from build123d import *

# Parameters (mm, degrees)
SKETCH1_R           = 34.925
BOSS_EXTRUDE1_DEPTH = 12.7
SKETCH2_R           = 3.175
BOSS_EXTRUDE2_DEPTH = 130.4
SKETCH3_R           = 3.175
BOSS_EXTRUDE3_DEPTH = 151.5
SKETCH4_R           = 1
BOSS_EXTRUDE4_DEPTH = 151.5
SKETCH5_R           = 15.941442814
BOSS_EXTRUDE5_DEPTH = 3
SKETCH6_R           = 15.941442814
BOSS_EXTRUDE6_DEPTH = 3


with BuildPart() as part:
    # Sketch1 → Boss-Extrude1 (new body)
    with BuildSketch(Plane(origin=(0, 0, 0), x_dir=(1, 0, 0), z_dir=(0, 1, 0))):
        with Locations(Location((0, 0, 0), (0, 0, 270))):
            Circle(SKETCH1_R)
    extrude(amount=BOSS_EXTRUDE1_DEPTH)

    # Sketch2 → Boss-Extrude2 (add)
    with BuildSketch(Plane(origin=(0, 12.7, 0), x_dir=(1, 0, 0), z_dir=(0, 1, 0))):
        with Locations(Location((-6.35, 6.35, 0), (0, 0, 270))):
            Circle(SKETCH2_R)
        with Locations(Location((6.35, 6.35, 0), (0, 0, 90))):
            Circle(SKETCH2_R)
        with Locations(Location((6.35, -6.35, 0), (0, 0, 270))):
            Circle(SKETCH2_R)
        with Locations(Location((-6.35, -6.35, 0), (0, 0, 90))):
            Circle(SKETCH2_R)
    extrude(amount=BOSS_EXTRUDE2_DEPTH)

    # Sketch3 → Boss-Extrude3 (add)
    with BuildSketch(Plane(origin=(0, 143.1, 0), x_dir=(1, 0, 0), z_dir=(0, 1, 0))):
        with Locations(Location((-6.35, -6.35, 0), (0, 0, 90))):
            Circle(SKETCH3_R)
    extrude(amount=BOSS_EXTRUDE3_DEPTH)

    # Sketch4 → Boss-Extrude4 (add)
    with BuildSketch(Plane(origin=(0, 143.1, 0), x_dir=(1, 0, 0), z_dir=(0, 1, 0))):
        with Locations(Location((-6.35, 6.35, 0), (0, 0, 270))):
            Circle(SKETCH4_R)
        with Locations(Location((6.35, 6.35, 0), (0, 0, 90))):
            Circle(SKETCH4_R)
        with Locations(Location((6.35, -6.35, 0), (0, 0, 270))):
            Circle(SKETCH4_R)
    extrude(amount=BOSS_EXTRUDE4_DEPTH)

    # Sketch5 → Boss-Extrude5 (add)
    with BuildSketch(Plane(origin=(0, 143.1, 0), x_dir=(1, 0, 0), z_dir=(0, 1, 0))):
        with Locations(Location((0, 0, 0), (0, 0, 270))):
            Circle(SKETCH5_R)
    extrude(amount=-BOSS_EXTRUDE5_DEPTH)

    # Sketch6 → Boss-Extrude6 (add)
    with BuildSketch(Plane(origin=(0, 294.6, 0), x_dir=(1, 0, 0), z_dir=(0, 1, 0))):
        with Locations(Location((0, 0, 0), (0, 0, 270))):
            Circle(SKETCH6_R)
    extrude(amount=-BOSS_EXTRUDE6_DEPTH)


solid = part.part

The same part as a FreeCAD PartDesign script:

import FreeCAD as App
import Part
import Sketcher
Q = App.Units.Quantity

doc = App.newDocument("Part")
body = doc.addObject("PartDesign::Body", "Body")

# Sketch on XZ plane
sketch1 = body.newObject("Sketcher::SketchObject", "Sketch")
sketch1.AttachmentSupport = (doc.getObject("XZ_Plane"), [""])
sketch1.MapMode = "FlatFace"
sketch1.addGeometry(Part.Circle(App.Vector(0, 0, 0), App.Vector(0, 0, 1), 35), False)
sketch1.addConstraint([
    Sketcher.Constraint("Coincident", 0, 3, -1, 1),
    Sketcher.Constraint("Diameter", 0, Q("69.85 mm")),
])
pad1 = body.newObject("PartDesign::Pad", "Pad")
pad1.Profile = sketch1
pad1.Length = 12.7
pad1.Reversed = True

# Sketch on XZ plane
sketch2 = body.newObject("Sketcher::SketchObject", "Sketch001")
sketch2.AttachmentSupport = (doc.getObject("XZ_Plane"), [""])
sketch2.MapMode = "FlatFace"
sketch2.AttachmentOffset = App.Placement(App.Vector(0, 0, -12.7), App.Rotation())
sketch2.addGeometry([
    Part.Circle(App.Vector(-6.3, -6.3, 0), App.Vector(0, 0, 1), 3.2),
    Part.Circle(App.Vector(6.3, -6.3, 0), App.Vector(0, 0, 1), 3.2),
    Part.Circle(App.Vector(6.3, 6.3, 0), App.Vector(0, 0, 1), 3.2),
    Part.Circle(App.Vector(-6.3, 6.3, 0), App.Vector(0, 0, 1), 3.2),
], False)
sketch2.addConstraint([
    Sketcher.Constraint("Equal", 0, 1),
    Sketcher.Constraint("Equal", 1, 2),
    Sketcher.Constraint("Equal", 2, 3),
    Sketcher.Constraint("Symmetric", 0, 3, 2, 3, -1, 1),
    Sketcher.Constraint("Symmetric", 1, 3, 3, 3, -1, 1),
    Sketcher.Constraint("Symmetric", 0, 3, 1, 3, -2),
    Sketcher.Constraint("Diameter", 0, Q("6.35 mm")),
    Sketcher.Constraint("DistanceX", 0, 3, 1, 3, Q("12.7 mm")),
    Sketcher.Constraint("DistanceY", 1, 3, 2, 3, Q("12.7 mm")),
])
pad2 = body.newObject("PartDesign::Pad", "Pad001")
pad2.Profile = sketch2
pad2.Length = 130.4
pad2.Reversed = True

# Sketch on XZ plane
sketch3 = body.newObject("Sketcher::SketchObject", "Sketch002")
sketch3.AttachmentSupport = (doc.getObject("XZ_Plane"), [""])
sketch3.MapMode = "FlatFace"
sketch3.AttachmentOffset = App.Placement(App.Vector(0, 0, -143.1), App.Rotation())
sketch3.addGeometry(Part.Circle(App.Vector(-6.3, 6.3, 0), App.Vector(0, 0, 1), 3.2), False)
sketch3.addConstraint([
    Sketcher.Constraint("Diameter", 0, Q("6.35 mm")),
    Sketcher.Constraint("DistanceX", 0, 3, -1, 1, Q("6.35 mm")),
    Sketcher.Constraint("DistanceY", -1, 1, 0, 3, Q("6.35 mm")),
])
pad3 = body.newObject("PartDesign::Pad", "Pad002")
pad3.Profile = sketch3
pad3.Length = 151.5
pad3.Reversed = True

# Sketch on XZ plane
sketch4 = body.newObject("Sketcher::SketchObject", "Sketch003")
sketch4.AttachmentSupport = (doc.getObject("XZ_Plane"), [""])
sketch4.MapMode = "FlatFace"
sketch4.AttachmentOffset = App.Placement(App.Vector(0, 0, -143.1), App.Rotation())
sketch4.addGeometry([
    Part.Circle(App.Vector(-6.3, -6.3, 0), App.Vector(0, 0, 1), 1),
    Part.Circle(App.Vector(6.3, -6.3, 0), App.Vector(0, 0, 1), 1),
    Part.Circle(App.Vector(6.3, 6.3, 0), App.Vector(0, 0, 1), 1),
], False)
sketch4.addConstraint([
    Sketcher.Constraint("Equal", 0, 1),
    Sketcher.Constraint("Equal", 1, 2),
    Sketcher.Constraint("Symmetric", 0, 3, 2, 3, -1, 1),
    Sketcher.Constraint("Symmetric", 0, 3, 1, 3, -2),
    Sketcher.Constraint("Diameter", 0, Q("2 mm")),
    Sketcher.Constraint("DistanceX", 0, 3, 1, 3, Q("12.7 mm")),
    Sketcher.Constraint("DistanceY", 1, 3, 2, 3, Q("12.7 mm")),
])
pad4 = body.newObject("PartDesign::Pad", "Pad003")
pad4.Profile = sketch4
pad4.Length = 151.5
pad4.Reversed = True

# Sketch on XZ plane
sketch5 = body.newObject("Sketcher::SketchObject", "Sketch004")
sketch5.AttachmentSupport = (doc.getObject("XZ_Plane"), [""])
sketch5.MapMode = "FlatFace"
sketch5.AttachmentOffset = App.Placement(App.Vector(0, 0, -143.1), App.Rotation())
sketch5.addGeometry(Part.Circle(App.Vector(0, 0, 0), App.Vector(0, 0, 1), 16), False)
sketch5.addConstraint([
    Sketcher.Constraint("Coincident", 0, 3, -1, 1),
    Sketcher.Constraint("Diameter", 0, Q("31.882886 mm")),
])
pad5 = body.newObject("PartDesign::Pad", "Pad004")
pad5.Profile = sketch5
pad5.Length = 3

# Sketch on XZ plane
sketch6 = body.newObject("Sketcher::SketchObject", "Sketch005")
sketch6.AttachmentSupport = (doc.getObject("XZ_Plane"), [""])
sketch6.MapMode = "FlatFace"
sketch6.AttachmentOffset = App.Placement(App.Vector(0, 0, -294.6), App.Rotation())
sketch6.addGeometry(Part.Circle(App.Vector(0, 0, 0), App.Vector(0, 0, 1), 16), False)
sketch6.addConstraint([
    Sketcher.Constraint("Coincident", 0, 3, -1, 1),
    Sketcher.Constraint("Diameter", 0, Q("31.882886 mm")),
])
pad6 = body.newObject("PartDesign::Pad", "Pad005")
pad6.Profile = sketch6
pad6.Length = 3

doc.recompute()
